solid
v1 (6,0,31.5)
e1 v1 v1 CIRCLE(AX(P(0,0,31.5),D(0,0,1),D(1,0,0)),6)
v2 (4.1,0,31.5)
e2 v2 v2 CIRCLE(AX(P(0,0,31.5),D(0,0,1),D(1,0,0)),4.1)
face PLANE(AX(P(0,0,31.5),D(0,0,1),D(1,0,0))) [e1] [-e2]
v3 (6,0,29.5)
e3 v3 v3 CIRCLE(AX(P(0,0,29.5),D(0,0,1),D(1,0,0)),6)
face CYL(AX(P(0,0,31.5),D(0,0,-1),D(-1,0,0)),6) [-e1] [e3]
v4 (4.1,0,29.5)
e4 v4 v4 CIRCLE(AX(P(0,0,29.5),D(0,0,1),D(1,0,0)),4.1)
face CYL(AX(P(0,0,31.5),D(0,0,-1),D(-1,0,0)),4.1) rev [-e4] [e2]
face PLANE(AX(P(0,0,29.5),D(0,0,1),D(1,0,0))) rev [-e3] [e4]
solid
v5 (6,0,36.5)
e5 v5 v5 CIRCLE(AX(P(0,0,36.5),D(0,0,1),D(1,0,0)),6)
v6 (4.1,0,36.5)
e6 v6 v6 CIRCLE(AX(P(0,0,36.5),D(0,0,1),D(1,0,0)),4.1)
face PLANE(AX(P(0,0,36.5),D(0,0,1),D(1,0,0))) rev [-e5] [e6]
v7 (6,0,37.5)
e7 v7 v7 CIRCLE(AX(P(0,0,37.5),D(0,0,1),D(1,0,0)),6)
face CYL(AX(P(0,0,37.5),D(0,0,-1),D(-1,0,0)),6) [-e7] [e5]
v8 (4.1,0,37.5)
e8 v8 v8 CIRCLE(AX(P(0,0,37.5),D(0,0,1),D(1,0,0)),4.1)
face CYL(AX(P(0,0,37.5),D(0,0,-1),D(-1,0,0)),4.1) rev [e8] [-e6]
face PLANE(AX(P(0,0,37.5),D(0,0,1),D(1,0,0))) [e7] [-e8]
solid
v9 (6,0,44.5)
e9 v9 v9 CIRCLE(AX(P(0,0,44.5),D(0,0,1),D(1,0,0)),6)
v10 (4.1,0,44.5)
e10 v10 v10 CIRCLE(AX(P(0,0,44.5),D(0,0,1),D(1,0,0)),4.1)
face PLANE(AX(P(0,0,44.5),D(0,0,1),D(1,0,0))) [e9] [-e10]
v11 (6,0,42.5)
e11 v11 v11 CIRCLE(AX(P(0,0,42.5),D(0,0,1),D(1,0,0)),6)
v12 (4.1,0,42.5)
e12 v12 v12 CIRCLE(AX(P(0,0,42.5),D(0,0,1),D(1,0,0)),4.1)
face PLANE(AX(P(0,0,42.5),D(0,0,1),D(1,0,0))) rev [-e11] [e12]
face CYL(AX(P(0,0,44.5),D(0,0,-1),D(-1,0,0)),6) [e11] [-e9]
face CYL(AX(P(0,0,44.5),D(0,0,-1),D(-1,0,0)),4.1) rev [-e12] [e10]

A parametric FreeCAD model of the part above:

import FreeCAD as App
import Part
import Sketcher

V = App.Vector

doc = App.newDocument("Part")
body = doc.addObject("PartDesign::Body", "Body")

sketch1 = body.newObject("Sketcher::SketchObject", "Sketch")
sketch1.AttachmentSupport = (doc.getObject("XY_Plane"), [""])
sketch1.MapMode = "FlatFace"
sketch1.AttachmentOffset = App.Placement(V(0, 0, 29.5), App.Rotation())
sketch1.addGeometry([
    Part.Circle(V(0, 0, 0), V(0, 0, 1), 6),
    Part.Circle(V(0, 0, 0), V(0, 0, 1), 4.1),
], False)
sketch1.addConstraint([
    Sketcher.Constraint("Coincident", 0, 3, -1, 1),
    Sketcher.Constraint("Coincident", 1, 3, -1, 1),
    Sketcher.Constraint("Diameter", 0, 12.0),
    Sketcher.Constraint("Diameter", 1, 8.2),
])
pad1 = body.newObject("PartDesign::Pad", "Pad")
pad1.Profile = sketch1
pad1.Length = 2
body2 = doc.addObject("PartDesign::Body", "Body001")

sketch2 = body2.newObject("Sketcher::SketchObject", "Sketch001")
sketch2.AttachmentSupport = (doc.getObject("XY_Plane001"), [""])
sketch2.MapMode = "FlatFace"
sketch2.AttachmentOffset = App.Placement(V(0, 0, 36.5), App.Rotation())
sketch2.addGeometry([
    Part.Circle(V(0, 0, 0), V(0, 0, 1), 6),
    Part.Circle(V(0, 0, 0), V(0, 0, 1), 4.1),
], False)
sketch2.addConstraint([
    Sketcher.Constraint("Coincident", 0, 3, -1, 1),
    Sketcher.Constraint("Coincident", 1, 3, -1, 1),
    Sketcher.Constraint("Diameter", 0, 12.0),
    Sketcher.Constraint("Diameter", 1, 8.2),
])
pad2 = body2.newObject("PartDesign::Pad", "Pad001")
pad2.Profile = sketch2
pad2.Length = 1
body3 = doc.addObject("PartDesign::Body", "Body002")

sketch3 = body3.newObject("Sketcher::SketchObject", "Sketch002")
sketch3.AttachmentSupport = (doc.getObject("XY_Plane002"), [""])
sketch3.MapMode = "FlatFace"
sketch3.AttachmentOffset = App.Placement(V(0, 0, 42.5), App.Rotation())
sketch3.addGeometry([
    Part.Circle(V(0, 0, 0), V(0, 0, 1), 6),
    Part.Circle(V(0, 0, 0), V(0, 0, 1), 4.1),
], False)
sketch3.addConstraint([
    Sketcher.Constraint("Coincident", 0, 3, -1, 1),
    Sketcher.Constraint("Coincident", 1, 3, -1, 1),
    Sketcher.Constraint("Diameter", 0, 12.0),
    Sketcher.Constraint("Diameter", 1, 8.2),
])
pad3 = body3.newObject("PartDesign::Pad", "Pad002")
pad3.Profile = sketch3
pad3.Length = 2

doc.recompute()
